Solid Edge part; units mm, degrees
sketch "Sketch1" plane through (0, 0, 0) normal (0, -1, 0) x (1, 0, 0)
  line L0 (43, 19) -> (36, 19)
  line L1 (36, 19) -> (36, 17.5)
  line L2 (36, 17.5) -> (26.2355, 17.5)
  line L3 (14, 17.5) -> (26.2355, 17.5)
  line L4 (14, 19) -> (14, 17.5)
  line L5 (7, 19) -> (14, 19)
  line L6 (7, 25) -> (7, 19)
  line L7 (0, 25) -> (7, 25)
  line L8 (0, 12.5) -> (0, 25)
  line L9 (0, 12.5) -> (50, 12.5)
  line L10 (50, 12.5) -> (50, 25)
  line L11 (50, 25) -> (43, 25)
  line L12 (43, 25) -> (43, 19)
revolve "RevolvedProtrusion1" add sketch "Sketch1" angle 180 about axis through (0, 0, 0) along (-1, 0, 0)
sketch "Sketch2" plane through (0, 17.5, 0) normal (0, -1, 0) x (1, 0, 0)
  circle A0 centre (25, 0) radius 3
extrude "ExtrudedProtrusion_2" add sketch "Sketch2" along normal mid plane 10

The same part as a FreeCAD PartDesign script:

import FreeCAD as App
import Part
import Sketcher
Q = App.Units.Quantity

doc = App.newDocument("Part")
body = doc.addObject("PartDesign::Body", "Body")

# Sketch on XZ plane
sketch1 = body.newObject("Sketcher::SketchObject", "Sketch")
sketch1.AttachmentSupport = (doc.getObject("XZ_Plane"), [""])
sketch1.MapMode = "FlatFace"
sketch1.addGeometry(Part.LineSegment(App.Vector(43, 25, 0), App.Vector(43, 19, 0)), False)
sketch1.addGeometry(Part.LineSegment(App.Vector(43, 19, 0), App.Vector(36, 19, 0)), False)
sketch1.addGeometry(Part.LineSegment(App.Vector(36, 19, 0), App.Vector(36, 17.5, 0)), False)
sketch1.addGeometry(Part.LineSegment(App.Vector(36, 17.5, 0), App.Vector(14, 17.5, 0)), False)
sketch1.addGeometry(Part.LineSegment(App.Vector(14, 17.5, 0), App.Vector(14, 19, 0)), False)
sketch1.addGeometry(Part.LineSegment(App.Vector(14, 19, 0), App.Vector(7, 19, 0)), False)
sketch1.addGeometry(Part.LineSegment(App.Vector(7, 19, 0), App.Vector(7, 25, 0)), False)
sketch1.addGeometry(Part.LineSegment(App.Vector(7, 25, 0), App.Vector(0, 25, 0)), False)
sketch1.addGeometry(Part.LineSegment(App.Vector(0, 25, 0), App.Vector(0, 12.5, 0)), False)
sketch1.addGeometry(Part.LineSegment(App.Vector(0, 12.5, 0), App.Vector(50, 12.5, 0)), False)
sketch1.addGeometry(Part.LineSegment(App.Vector(50, 12.5, 0), App.Vector(50, 25, 0)), False)
sketch1.addGeometry(Part.LineSegment(App.Vector(50, 25, 0), App.Vector(43, 25, 0)), False)
sketch1.addConstraint(Sketcher.Constraint("Coincident", 0, 2, 1, 1))
sketch1.addConstraint(Sketcher.Constraint("Coincident", 1, 2, 2, 1))
sketch1.addConstraint(Sketcher.Constraint("Coincident", 2, 2, 3, 1))
sketch1.addConstraint(Sketcher.Constraint("Coincident", 3, 2, 4, 1))
sketch1.addConstraint(Sketcher.Constraint("Coincident", 4, 2, 5, 1))
sketch1.addConstraint(Sketcher.Constraint("Coincident", 5, 2, 6, 1))
sketch1.addConstraint(Sketcher.Constraint("Coincident", 6, 2, 7, 1))
sketch1.addConstraint(Sketcher.Constraint("Coincident", 7, 2, 8, 1))
sketch1.addConstraint(Sketcher.Constraint("Coincident", 8, 2, 9, 1))
sketch1.addConstraint(Sketcher.Constraint("Coincident", 9, 2, 10, 1))
sketch1.addConstraint(Sketcher.Constraint("Coincident", 10, 2, 11, 1))
sketch1.addConstraint(Sketcher.Constraint("Coincident", 11, 2, 0, 1))
sketch1.addConstraint(Sketcher.Constraint("Vertical", 0))
sketch1.addConstraint(Sketcher.Constraint("Horizontal", 1))
sketch1.addConstraint(Sketcher.Constraint("Vertical", 2))
sketch1.addConstraint(Sketcher.Constraint("Horizontal", 3))
sketch1.addConstraint(Sketcher.Constraint("Vertical", 4))
sketch1.addConstraint(Sketcher.Constraint("Horizontal", 5))
sketch1.addConstraint(Sketcher.Constraint("Vertical", 6))
sketch1.addConstraint(Sketcher.Constraint("Horizontal", 7))
sketch1.addConstraint(Sketcher.Constraint("Vertical", 8))
sketch1.addConstraint(Sketcher.Constraint("Horizontal", 9))
sketch1.addConstraint(Sketcher.Constraint("Vertical", 10))
sketch1.addConstraint(Sketcher.Constraint("Horizontal", 11))
sketch1.addConstraint(Sketcher.Constraint("PointOnObject", 7, 2, -2))
sketch1.addConstraint(Sketcher.Constraint("Horizontal", 1, 2, 4, 2))
sketch1.addConstraint(Sketcher.Constraint("Horizontal", 7, 2, 10, 2))
sketch1.addConstraint(Sketcher.Constraint("Equal", 1, 5))
sketch1.addConstraint(Sketcher.Constraint("Equal", 5, 7))
sketch1.addConstraint(Sketcher.Constraint("Equal", 7, 11))
sketch1.addConstraint(Sketcher.Constraint("DistanceX", 1, 2, 1, 1, Q("7 mm")))
sketch1.addConstraint(Sketcher.Constraint("DistanceX", 3, 2, 3, 1, Q("22 mm")))
sketch1.addConstraint(Sketcher.Constraint("DistanceY", 0, 2, 0, 1, Q("6 mm")))
sketch1.addConstraint(Sketcher.Constraint("DistanceY", 2, 2, 2, 1, Q("1.5 mm")))
sketch1.addConstraint(Sketcher.Constraint("DistanceY", 8, 2, 8, 1, Q("12.5 mm")))
sketch1.addConstraint(Sketcher.Constraint("DistanceY", -1, 1, 0, 2, Q("19 mm")))
revolution = body.newObject("PartDesign::Revolution", "Revolution")
revolution.Profile = sketch1
revolution.ReferenceAxis = (sketch1, ["H_Axis"])
revolution.Angle = 180
revolution.Reversed = True

# Sketch on XZ plane
sketch2 = body.newObject("Sketcher::SketchObject", "Sketch001")
sketch2.AttachmentSupport = (doc.getObject("XZ_Plane"), [""])
sketch2.MapMode = "FlatFace"
sketch2.AttachmentOffset = App.Placement(App.Vector(0, 0, -17.5), App.Rotation())
sketch2.addGeometry(Part.Circle(App.Vector(25, 0, 0), App.Vector(0, 0, 1), 3), False)
sketch2.addConstraint(Sketcher.Constraint("PointOnObject", 0, 3, -1))
sketch2.addConstraint(Sketcher.Constraint("Diameter", 0, Q("6 mm")))
sketch2.addConstraint(Sketcher.Constraint("DistanceX", -1, 1, 0, 3, Q("25 mm")))
pad1 = body.newObject("PartDesign::Pad", "Pad")
pad1.Profile = sketch2
pad1.Length = 10
pad1.Midplane = True

doc.recompute()
